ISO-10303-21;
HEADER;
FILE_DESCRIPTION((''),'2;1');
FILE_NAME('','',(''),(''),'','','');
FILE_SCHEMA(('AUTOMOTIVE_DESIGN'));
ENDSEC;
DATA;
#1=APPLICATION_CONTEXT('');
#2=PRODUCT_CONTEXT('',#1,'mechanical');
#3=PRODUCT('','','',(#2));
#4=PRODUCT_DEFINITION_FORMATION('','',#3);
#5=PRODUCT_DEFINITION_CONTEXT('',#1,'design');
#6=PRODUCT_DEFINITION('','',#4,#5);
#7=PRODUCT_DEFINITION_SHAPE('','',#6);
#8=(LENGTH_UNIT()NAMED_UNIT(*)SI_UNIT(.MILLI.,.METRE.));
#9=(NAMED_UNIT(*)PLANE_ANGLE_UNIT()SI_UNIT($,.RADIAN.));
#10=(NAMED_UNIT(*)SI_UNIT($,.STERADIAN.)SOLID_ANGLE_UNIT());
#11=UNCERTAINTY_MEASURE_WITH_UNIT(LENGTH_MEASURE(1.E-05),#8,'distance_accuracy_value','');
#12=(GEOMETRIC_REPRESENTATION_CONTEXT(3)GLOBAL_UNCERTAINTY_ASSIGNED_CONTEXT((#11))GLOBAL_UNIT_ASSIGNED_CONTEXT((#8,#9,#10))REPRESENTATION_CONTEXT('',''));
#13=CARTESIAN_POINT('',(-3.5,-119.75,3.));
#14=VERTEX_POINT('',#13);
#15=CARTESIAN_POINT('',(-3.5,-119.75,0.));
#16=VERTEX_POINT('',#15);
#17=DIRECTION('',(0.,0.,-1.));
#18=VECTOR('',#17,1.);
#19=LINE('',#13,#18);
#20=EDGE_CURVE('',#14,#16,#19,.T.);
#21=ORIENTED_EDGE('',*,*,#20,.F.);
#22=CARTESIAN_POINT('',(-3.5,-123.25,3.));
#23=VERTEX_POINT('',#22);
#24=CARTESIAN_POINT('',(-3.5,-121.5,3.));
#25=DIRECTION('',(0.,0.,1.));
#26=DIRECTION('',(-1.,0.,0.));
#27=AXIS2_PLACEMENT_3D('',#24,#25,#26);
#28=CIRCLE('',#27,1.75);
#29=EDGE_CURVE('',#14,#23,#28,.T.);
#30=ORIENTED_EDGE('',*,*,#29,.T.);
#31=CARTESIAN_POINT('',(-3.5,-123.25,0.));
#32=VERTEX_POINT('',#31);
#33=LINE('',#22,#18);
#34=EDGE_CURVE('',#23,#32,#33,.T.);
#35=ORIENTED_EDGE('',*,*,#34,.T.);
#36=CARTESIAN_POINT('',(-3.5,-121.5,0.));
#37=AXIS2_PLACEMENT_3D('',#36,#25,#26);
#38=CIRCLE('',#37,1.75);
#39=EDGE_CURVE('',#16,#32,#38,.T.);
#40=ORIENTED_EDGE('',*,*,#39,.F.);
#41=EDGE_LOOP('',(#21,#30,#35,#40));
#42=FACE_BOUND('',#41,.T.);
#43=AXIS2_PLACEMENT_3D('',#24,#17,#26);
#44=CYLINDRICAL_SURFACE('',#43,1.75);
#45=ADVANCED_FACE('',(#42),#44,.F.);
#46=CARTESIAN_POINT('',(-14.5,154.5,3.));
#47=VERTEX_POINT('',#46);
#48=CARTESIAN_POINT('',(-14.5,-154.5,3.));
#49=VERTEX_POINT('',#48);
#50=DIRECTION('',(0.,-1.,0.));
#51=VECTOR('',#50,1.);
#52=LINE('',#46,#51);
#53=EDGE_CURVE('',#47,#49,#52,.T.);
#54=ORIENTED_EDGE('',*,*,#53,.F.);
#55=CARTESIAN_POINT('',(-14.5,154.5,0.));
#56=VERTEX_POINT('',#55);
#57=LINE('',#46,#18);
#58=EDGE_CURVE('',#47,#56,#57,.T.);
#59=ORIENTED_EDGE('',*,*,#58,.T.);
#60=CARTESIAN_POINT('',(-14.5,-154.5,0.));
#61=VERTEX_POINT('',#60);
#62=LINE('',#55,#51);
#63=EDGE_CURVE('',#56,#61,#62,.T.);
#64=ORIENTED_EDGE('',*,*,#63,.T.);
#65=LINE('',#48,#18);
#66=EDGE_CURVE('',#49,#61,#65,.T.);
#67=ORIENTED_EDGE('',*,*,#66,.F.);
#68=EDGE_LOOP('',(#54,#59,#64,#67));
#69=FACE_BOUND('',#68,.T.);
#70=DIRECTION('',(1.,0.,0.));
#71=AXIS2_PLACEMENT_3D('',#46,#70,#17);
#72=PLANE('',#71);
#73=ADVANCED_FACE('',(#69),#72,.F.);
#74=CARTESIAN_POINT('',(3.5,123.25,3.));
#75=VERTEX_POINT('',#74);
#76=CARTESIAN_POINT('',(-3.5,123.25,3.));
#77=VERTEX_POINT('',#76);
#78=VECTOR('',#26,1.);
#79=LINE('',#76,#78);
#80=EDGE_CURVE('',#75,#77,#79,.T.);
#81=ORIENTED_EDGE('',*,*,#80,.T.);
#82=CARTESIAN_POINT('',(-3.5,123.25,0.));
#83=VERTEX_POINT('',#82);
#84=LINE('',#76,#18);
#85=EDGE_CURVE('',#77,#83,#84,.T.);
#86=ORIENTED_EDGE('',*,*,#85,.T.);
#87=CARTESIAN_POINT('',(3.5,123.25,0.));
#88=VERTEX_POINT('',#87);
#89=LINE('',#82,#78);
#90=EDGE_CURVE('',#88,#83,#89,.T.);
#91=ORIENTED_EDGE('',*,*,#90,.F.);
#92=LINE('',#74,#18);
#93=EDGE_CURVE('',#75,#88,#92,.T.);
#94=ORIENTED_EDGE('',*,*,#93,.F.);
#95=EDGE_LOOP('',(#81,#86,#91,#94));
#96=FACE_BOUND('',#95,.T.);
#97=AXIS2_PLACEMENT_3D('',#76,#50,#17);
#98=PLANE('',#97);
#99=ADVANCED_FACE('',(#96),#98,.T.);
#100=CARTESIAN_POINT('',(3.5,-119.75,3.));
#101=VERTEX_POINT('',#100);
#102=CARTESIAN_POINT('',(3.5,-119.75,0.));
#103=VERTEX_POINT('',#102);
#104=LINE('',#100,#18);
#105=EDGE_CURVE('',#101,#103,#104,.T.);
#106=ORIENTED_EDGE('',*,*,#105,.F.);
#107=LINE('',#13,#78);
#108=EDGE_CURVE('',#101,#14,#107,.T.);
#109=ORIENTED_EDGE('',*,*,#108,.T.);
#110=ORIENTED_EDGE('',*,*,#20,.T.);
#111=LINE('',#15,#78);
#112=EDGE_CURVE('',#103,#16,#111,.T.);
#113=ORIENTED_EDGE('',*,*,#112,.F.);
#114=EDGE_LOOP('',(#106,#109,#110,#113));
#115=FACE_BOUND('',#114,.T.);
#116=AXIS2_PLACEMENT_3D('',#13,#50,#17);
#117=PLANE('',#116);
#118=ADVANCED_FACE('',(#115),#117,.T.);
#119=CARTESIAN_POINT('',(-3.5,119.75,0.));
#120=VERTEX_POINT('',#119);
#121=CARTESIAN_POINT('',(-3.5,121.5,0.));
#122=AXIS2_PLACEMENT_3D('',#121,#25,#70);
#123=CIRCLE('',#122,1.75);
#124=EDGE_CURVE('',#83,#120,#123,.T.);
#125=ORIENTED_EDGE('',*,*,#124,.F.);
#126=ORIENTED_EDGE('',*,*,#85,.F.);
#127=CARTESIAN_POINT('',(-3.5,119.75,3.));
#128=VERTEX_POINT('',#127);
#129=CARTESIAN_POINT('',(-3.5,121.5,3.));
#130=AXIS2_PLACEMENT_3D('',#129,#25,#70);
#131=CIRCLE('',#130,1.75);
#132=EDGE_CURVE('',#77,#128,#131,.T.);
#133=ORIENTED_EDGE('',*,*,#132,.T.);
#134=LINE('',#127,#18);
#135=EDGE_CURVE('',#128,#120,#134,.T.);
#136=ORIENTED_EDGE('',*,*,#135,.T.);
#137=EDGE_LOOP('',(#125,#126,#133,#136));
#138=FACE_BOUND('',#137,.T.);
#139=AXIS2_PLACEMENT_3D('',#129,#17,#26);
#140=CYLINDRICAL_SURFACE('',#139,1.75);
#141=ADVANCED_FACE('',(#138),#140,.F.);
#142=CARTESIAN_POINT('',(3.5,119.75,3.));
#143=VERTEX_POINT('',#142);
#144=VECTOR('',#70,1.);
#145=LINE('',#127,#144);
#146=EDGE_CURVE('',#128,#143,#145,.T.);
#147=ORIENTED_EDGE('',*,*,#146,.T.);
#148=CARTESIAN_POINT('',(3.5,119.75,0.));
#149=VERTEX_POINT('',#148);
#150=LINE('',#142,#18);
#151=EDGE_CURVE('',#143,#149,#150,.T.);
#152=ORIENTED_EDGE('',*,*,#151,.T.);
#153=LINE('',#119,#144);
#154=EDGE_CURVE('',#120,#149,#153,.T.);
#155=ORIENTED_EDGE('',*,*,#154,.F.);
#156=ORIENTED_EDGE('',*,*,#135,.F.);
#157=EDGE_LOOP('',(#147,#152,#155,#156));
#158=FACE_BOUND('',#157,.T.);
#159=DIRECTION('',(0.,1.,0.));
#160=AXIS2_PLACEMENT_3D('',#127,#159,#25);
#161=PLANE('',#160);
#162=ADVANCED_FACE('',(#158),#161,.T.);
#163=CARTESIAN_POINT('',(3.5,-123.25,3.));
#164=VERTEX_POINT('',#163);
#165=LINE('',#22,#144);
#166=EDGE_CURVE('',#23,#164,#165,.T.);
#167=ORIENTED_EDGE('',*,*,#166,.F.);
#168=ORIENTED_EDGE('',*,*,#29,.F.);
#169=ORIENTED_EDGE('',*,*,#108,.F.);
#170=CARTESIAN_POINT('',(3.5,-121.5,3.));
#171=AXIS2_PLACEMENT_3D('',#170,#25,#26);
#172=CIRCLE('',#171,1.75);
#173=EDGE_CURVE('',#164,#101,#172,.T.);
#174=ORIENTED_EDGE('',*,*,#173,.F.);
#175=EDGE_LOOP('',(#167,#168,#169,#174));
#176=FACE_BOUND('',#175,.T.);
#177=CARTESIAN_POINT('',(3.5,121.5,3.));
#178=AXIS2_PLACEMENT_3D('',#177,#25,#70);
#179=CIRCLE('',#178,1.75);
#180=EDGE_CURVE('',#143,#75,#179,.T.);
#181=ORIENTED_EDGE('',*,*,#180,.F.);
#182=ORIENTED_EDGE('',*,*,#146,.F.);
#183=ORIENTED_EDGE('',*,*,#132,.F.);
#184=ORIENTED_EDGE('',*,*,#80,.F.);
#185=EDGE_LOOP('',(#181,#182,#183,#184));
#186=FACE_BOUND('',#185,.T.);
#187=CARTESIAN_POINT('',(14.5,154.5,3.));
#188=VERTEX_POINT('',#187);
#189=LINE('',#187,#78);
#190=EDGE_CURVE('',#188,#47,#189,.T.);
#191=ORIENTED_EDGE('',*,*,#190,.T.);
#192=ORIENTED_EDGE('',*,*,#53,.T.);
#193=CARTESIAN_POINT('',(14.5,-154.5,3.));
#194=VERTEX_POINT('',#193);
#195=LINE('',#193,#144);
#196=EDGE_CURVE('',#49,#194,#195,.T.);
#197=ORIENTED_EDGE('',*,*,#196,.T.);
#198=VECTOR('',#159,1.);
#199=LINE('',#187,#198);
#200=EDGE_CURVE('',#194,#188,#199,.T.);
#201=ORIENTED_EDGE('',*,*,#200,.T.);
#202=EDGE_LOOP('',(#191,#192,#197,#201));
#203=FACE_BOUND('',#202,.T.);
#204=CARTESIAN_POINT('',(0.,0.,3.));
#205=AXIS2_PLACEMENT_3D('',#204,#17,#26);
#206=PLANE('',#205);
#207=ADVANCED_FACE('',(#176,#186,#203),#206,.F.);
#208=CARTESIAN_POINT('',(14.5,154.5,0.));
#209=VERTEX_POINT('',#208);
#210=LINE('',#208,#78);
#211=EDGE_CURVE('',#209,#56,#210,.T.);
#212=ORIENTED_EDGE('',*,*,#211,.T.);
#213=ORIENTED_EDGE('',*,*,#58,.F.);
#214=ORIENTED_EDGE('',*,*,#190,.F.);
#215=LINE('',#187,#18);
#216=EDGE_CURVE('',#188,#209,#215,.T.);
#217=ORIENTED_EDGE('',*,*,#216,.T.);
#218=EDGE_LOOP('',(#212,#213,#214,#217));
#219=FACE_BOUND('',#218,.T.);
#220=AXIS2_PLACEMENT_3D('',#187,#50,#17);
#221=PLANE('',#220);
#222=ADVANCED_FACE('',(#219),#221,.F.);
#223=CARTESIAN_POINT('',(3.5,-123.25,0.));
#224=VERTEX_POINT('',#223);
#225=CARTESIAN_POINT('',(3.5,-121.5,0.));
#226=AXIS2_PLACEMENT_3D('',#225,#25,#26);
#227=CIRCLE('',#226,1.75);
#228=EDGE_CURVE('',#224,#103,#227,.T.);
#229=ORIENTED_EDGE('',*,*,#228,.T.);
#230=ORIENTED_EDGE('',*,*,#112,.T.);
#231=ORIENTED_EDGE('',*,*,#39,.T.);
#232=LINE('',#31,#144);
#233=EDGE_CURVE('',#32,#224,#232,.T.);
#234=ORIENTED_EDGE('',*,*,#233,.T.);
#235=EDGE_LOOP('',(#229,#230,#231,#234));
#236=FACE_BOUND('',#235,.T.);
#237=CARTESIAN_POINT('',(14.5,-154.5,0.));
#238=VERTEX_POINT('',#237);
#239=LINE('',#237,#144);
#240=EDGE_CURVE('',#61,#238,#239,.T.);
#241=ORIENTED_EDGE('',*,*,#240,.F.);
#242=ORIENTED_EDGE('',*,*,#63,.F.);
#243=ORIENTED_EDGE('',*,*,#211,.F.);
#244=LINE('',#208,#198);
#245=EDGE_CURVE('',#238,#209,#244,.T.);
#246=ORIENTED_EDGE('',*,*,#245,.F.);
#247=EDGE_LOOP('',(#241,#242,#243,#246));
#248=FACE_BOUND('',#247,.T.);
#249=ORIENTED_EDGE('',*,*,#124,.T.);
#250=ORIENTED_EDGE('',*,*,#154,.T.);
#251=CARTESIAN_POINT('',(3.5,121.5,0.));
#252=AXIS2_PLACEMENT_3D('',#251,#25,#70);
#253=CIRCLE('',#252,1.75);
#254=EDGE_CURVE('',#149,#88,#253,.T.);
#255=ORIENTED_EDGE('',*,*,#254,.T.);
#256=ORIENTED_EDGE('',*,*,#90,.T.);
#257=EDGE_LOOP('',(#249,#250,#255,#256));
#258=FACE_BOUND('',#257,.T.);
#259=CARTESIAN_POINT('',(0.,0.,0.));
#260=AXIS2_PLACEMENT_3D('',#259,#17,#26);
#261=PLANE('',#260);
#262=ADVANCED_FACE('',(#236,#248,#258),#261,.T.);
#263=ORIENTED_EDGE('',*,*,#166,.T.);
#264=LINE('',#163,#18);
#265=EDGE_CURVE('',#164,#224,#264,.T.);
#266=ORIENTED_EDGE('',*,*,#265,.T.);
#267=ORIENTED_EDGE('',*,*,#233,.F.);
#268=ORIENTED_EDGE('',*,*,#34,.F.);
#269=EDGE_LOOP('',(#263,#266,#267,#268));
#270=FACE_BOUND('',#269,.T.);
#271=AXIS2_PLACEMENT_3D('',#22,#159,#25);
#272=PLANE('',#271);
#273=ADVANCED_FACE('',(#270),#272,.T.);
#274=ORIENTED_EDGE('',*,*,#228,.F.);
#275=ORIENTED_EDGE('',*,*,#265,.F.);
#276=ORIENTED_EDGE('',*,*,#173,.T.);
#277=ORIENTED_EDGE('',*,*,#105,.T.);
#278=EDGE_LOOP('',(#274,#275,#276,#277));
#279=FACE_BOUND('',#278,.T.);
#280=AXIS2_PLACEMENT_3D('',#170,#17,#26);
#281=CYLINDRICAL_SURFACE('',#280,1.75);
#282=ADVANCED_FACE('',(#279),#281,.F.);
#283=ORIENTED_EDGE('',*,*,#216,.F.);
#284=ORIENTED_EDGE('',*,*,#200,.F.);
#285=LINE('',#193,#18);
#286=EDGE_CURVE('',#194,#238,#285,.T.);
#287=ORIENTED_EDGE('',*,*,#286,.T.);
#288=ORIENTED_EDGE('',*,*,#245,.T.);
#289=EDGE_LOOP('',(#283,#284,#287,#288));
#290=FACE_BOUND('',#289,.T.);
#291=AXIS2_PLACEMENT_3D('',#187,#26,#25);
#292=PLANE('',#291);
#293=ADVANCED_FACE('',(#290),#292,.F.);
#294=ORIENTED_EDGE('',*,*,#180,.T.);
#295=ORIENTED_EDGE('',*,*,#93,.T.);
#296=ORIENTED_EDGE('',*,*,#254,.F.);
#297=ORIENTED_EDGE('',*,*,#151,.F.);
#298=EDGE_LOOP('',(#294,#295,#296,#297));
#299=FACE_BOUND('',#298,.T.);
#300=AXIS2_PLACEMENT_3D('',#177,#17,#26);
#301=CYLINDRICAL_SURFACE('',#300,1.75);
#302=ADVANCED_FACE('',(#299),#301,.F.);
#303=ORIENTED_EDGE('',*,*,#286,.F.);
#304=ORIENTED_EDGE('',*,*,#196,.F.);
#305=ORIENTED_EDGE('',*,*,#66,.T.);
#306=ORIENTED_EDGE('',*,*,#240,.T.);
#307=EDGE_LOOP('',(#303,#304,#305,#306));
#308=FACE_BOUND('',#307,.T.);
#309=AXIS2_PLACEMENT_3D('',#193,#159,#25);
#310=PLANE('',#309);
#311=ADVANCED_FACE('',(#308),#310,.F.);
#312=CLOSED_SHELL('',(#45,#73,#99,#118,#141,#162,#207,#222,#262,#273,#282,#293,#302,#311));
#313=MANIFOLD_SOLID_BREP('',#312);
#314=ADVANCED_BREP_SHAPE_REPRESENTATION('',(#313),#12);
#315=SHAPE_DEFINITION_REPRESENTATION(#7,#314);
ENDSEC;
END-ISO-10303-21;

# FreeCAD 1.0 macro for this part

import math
import FreeCAD as App
import Part
import Sketcher

doc = App.newDocument("Part")
params = doc.addObject("Spreadsheet::Sheet", "Params")
for row, (alias, value) in enumerate([
    ("sketch1_width", "29 mm"),
    ("sketch1_width2", "7 mm"),
    ("sketch1_height", "309 mm"),
    ("sketch1_radius", "1.75 mm"),
    ("pad1_length", "3 mm"),
], start=1):
    params.set(f"A{row}", alias)
    params.set(f"B{row}", "=" + value)
    params.setAlias(f"B{row}", alias)

body = doc.addObject("PartDesign::Body", "Body")

# Sketch on XY plane
sketch1 = body.newObject("Sketcher::SketchObject", "Sketch")
sketch1.AttachmentSupport = (doc.getObject("XY_Plane"), [""])
sketch1.MapMode = "FlatFace"
sketch1.addGeometry([
    Part.LineSegment(App.Vector(-14.5, 154.5, 0), App.Vector(-14.5, -154.5, 0)),  # 0
    Part.LineSegment(App.Vector(-14.5, -154.5, 0), App.Vector(14.5, -154.5, 0)),  # 1
    Part.LineSegment(App.Vector(14.5, -154.5, 0), App.Vector(14.5, 154.5, 0)),  # 2
    Part.LineSegment(App.Vector(14.5, 154.5, 0), App.Vector(-14.5, 154.5, 0)),  # 3
    Part.LineSegment(App.Vector(3.5, -123.2, 0), App.Vector(-3.5, -123.2, 0)),  # 4
    Part.ArcOfCircle(Part.Circle(App.Vector(-3.5, -121.5, 0), App.Vector(0, 0, 1), 1.8), math.radians(90), math.radians(270)),  # 5
    Part.LineSegment(App.Vector(-3.5, -119.8, 0), App.Vector(3.5, -119.8, 0)),  # 6
    Part.ArcOfCircle(Part.Circle(App.Vector(3.5, -121.5, 0), App.Vector(0, 0, 1), 1.8), math.radians(-90), math.radians(90)),  # 7
    Part.ArcOfCircle(Part.Circle(App.Vector(-3.5, 121.5, 0), App.Vector(0, 0, 1), 1.8), math.radians(90), math.radians(270)),  # 8
    Part.LineSegment(App.Vector(-3.5, 123.2, 0), App.Vector(3.5, 123.2, 0)),  # 9
    Part.ArcOfCircle(Part.Circle(App.Vector(3.5, 121.5, 0), App.Vector(0, 0, 1), 1.8), math.radians(-90), math.radians(90)),  # 10
    Part.LineSegment(App.Vector(3.5, 119.8, 0), App.Vector(-3.5, 119.8, 0)),  # 11
], False)
sketch1.addConstraint([
    Sketcher.Constraint("Coincident", 0, 2, 1, 1),
    Sketcher.Constraint("Coincident", 1, 2, 2, 1),
    Sketcher.Constraint("Coincident", 2, 2, 3, 1),
    Sketcher.Constraint("Coincident", 3, 2, 0, 1),
    Sketcher.Constraint("Tangent", 4, 2, 5, 2),
    Sketcher.Constraint("Tangent", 5, 1, 6, 1),
    Sketcher.Constraint("Tangent", 6, 2, 7, 2),
    Sketcher.Constraint("Tangent", 7, 1, 4, 1),
    Sketcher.Constraint("Tangent", 8, 1, 9, 1),
    Sketcher.Constraint("Tangent", 9, 2, 10, 2),
    Sketcher.Constraint("Tangent", 10, 1, 11, 1),
    Sketcher.Constraint("Tangent", 11, 2, 8, 2),
    Sketcher.Constraint("Vertical", 0),
    Sketcher.Constraint("Horizontal", 1),
    Sketcher.Constraint("Vertical", 2),
    Sketcher.Constraint("Horizontal", 3),
    Sketcher.Constraint("Horizontal", 4),
    Sketcher.Constraint("Horizontal", 6),
    Sketcher.Constraint("Horizontal", 9),
    Sketcher.Constraint("Horizontal", 11),
    Sketcher.Constraint("Equal", 7, 8),
    Sketcher.Constraint("Symmetric", 7, 3, 8, 3, -1, 1),
    Sketcher.Constraint("Symmetric", 0, 2, 2, 2, -1, 1),
    Sketcher.Constraint("Vertical", 5, 3, 8, 3),
    Sketcher.Constraint("Vertical", 7, 3, 10, 3),
    Sketcher.Constraint("DistanceX", 1, 1, 1, 2, 29.0),
    Sketcher.Constraint("DistanceX", 4, 2, 4, 1, 7.0),
    Sketcher.Constraint("DistanceY", 0, 2, 0, 1, 309.0),
    Sketcher.Constraint("Radius", 5, 1.75),
    Sketcher.Constraint("DistanceY", 5, 3, 8, 3, 243.0),
])
sketch1.setExpression("Constraints[25]", "Params.sketch1_width")
sketch1.setExpression("Constraints[26]", "Params.sketch1_width2")
sketch1.setExpression("Constraints[27]", "Params.sketch1_height")
sketch1.setExpression("Constraints[28]", "Params.sketch1_radius")
pad1 = body.newObject("PartDesign::Pad", "Pad")
pad1.Profile = sketch1
pad1.setExpression("Length", "Params.pad1_length")

doc.recompute()
